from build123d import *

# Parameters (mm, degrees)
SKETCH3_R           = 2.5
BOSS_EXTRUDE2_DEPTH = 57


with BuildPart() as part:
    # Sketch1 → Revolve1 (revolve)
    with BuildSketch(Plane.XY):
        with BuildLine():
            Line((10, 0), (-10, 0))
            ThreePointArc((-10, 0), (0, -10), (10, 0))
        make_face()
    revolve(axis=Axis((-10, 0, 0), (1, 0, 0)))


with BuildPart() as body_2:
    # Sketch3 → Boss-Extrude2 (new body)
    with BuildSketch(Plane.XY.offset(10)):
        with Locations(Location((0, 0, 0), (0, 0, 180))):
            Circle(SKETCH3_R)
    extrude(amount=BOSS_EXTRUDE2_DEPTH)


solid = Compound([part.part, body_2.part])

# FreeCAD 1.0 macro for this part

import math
import FreeCAD as App
import Part
import Sketcher

V = App.Vector

doc = App.newDocument("Part")
body = doc.addObject("PartDesign::Body", "Body")

# Sketch on XY plane
sketch1 = body.newObject("Sketcher::SketchObject", "Sketch")
sketch1.AttachmentSupport = (doc.getObject("XY_Plane"), [""])
sketch1.MapMode = "FlatFace"
sketch1.addGeometry(Part.LineSegment(V(10, 0, 0), V(-10, 0, 0)), False)
sketch1.addGeometry(Part.ArcOfCircle(Part.Circle(V(0, 0, 0), V(0, 0, 1), 10), math.radians(180), math.radians(360)), False)
sketch1.addConstraint(Sketcher.Constraint("Coincident", 0, 1, 1, 2))
sketch1.addConstraint(Sketcher.Constraint("Coincident", 1, 1, 0, 2))
sketch1.addConstraint(Sketcher.Constraint("Horizontal", 0))
sketch1.addConstraint(Sketcher.Constraint("Coincident", 1, 3, -1, 1))
sketch1.addConstraint(Sketcher.Constraint("PointOnObject", 0, 1, -1))
sketch1.addConstraint(Sketcher.Constraint("Radius", 1, 10.0))
revolution = body.newObject("PartDesign::Revolution", "Revolution")
revolution.Profile = sketch1
revolution.ReferenceAxis = (sketch1, ["H_Axis"])
revolution.Angle = 360
body2 = doc.addObject("PartDesign::Body", "Body001")

# Sketch on XY plane
sketch2 = body2.newObject("Sketcher::SketchObject", "Sketch001")
sketch2.AttachmentSupport = (doc.getObject("XY_Plane001"), [""])
sketch2.MapMode = "FlatFace"
sketch2.AttachmentOffset = App.Placement(V(0, 0, 10), App.Rotation())
sketch2.addGeometry(Part.Circle(V(0, 0, 0), V(0, 0, 1), 2.5), False)
sketch2.addConstraint(Sketcher.Constraint("Coincident", 0, 3, -1, 1))
sketch2.addConstraint(Sketcher.Constraint("Diameter", 0, 5.0))
pad1 = body2.newObject("PartDesign::Pad", "Pad")
pad1.Profile = sketch2
pad1.Length = 57

doc.recompute()
